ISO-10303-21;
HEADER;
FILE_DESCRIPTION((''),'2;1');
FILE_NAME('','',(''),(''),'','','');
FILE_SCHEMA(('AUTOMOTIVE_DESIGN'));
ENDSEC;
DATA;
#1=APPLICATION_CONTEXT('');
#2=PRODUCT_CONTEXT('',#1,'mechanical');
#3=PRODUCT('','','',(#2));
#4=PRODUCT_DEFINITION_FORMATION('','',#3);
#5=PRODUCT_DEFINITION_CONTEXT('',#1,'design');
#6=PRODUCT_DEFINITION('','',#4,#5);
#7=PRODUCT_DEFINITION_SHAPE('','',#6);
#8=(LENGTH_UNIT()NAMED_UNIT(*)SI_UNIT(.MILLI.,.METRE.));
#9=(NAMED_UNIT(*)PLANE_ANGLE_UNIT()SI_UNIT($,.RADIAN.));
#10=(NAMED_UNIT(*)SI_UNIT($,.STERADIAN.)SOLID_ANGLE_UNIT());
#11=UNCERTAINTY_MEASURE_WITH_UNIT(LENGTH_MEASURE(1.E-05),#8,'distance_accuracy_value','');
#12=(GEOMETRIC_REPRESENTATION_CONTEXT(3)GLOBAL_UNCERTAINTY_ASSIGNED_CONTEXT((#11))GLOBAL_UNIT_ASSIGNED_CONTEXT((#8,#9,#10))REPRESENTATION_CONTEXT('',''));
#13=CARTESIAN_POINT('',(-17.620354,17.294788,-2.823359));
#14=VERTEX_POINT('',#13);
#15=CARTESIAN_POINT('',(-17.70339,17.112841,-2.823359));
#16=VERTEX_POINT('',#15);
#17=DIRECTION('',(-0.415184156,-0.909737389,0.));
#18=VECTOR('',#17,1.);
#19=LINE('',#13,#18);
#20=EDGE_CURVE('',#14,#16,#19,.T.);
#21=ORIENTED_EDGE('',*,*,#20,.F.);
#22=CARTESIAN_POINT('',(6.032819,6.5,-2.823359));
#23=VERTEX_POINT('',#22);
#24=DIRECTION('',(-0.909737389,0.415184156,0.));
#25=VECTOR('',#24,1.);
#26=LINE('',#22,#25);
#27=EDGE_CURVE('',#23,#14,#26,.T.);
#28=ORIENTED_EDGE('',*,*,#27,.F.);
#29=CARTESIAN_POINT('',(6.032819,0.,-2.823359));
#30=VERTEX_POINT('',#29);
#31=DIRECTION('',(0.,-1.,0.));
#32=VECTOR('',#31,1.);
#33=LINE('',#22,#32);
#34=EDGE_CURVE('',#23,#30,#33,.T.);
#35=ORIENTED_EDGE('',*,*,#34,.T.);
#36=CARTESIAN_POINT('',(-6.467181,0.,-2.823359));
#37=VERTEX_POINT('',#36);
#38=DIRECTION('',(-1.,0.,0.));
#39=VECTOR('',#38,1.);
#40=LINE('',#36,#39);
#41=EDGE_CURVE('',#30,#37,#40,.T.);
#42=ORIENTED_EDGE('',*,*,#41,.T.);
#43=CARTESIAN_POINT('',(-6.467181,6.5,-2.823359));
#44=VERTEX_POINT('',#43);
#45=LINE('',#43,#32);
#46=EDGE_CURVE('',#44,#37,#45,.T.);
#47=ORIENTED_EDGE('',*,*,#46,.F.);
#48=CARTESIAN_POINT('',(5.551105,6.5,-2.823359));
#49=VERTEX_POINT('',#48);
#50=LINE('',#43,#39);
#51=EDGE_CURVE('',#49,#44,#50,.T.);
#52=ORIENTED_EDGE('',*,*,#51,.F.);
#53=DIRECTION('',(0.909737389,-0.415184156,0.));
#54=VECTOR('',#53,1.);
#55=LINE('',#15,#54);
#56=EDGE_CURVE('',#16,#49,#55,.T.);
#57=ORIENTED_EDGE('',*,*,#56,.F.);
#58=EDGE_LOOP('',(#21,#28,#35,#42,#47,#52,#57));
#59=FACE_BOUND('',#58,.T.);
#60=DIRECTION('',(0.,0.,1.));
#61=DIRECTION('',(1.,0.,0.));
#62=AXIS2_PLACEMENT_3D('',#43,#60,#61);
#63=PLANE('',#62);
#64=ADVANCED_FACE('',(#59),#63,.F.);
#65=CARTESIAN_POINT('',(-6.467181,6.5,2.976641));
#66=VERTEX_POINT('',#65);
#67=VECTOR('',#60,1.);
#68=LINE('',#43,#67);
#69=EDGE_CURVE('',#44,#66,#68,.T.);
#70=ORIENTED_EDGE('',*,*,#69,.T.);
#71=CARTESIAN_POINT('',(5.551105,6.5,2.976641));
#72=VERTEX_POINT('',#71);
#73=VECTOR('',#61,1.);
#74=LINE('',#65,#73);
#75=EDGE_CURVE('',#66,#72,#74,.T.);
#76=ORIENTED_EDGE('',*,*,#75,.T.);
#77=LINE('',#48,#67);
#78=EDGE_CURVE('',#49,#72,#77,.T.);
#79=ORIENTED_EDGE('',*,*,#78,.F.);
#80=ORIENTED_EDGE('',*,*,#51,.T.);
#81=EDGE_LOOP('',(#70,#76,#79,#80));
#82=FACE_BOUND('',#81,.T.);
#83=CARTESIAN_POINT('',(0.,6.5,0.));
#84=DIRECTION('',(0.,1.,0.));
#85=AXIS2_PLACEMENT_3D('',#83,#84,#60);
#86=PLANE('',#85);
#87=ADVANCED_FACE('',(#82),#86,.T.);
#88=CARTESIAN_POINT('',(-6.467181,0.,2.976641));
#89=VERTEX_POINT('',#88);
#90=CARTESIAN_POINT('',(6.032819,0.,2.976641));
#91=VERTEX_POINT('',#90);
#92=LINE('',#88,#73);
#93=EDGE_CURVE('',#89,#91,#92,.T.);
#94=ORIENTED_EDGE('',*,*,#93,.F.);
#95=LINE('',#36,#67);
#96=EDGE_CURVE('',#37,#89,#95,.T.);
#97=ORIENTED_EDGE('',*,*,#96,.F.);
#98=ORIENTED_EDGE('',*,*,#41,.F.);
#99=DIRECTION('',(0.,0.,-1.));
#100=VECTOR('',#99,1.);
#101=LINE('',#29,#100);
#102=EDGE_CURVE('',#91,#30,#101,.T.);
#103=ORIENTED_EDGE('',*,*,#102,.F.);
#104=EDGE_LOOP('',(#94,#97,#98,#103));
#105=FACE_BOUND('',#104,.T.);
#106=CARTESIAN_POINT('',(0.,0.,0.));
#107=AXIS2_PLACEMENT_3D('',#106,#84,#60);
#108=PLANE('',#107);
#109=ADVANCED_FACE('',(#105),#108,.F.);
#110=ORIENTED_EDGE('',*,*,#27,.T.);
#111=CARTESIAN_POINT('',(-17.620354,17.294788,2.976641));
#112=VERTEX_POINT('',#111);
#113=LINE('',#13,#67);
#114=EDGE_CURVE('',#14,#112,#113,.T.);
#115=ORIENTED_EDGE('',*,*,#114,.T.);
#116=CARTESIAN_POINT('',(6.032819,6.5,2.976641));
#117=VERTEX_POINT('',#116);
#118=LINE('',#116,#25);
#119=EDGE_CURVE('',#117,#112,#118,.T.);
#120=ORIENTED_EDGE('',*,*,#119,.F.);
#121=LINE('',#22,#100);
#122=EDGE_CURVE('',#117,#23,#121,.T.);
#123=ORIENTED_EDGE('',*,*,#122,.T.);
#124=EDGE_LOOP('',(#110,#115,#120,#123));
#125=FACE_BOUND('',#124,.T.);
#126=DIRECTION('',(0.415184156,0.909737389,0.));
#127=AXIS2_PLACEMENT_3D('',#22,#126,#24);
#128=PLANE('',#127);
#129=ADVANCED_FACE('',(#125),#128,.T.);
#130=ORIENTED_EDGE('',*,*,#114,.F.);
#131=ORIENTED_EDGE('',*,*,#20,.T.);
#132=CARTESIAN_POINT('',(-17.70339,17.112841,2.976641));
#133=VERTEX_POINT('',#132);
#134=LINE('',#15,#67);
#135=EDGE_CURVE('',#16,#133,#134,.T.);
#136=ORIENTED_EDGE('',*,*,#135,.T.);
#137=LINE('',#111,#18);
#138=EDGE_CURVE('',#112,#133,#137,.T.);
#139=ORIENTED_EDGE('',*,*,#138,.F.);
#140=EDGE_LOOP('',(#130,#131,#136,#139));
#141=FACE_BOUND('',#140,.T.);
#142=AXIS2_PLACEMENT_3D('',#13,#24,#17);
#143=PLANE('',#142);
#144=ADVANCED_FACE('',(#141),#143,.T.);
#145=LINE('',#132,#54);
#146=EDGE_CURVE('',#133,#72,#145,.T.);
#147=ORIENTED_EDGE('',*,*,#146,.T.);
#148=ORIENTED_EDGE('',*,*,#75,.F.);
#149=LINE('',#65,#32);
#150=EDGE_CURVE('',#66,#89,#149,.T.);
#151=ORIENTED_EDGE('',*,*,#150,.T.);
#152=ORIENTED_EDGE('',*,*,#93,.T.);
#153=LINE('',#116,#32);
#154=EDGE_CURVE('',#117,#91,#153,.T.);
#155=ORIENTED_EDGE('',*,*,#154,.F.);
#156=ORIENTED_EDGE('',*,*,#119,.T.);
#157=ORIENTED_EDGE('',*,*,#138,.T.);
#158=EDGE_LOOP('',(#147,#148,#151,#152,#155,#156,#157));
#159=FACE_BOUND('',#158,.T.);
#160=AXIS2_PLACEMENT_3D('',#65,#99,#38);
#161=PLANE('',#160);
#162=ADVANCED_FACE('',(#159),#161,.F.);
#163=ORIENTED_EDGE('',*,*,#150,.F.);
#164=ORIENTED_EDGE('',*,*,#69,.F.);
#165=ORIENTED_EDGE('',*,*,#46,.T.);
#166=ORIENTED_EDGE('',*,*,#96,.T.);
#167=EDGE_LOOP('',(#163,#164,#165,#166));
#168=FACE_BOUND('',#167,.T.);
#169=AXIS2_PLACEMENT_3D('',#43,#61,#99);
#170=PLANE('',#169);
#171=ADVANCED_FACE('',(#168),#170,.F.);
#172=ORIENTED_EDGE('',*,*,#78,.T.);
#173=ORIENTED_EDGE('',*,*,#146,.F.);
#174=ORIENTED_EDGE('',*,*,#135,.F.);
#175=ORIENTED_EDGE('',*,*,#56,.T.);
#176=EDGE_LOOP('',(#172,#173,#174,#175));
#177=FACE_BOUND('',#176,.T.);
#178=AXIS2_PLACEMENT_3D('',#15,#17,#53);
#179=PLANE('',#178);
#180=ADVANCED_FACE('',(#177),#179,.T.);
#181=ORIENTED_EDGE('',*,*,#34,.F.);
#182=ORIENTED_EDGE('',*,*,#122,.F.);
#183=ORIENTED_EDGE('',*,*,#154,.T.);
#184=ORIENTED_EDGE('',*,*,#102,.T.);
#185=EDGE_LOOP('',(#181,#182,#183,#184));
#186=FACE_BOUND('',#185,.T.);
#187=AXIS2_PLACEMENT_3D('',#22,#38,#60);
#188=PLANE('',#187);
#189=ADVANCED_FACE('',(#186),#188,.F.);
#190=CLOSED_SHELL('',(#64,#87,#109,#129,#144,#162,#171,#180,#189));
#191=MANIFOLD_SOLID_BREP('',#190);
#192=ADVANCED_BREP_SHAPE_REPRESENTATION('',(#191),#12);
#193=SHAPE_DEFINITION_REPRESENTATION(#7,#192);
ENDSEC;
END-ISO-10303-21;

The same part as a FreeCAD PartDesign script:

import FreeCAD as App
import Part
import Sketcher
from FreeCAD import Vector


def add_polygon(sketch, points):
    """Adds a closed chain of lines whose ends are joined by coincident constraints."""
    first, n = sketch.GeometryCount, len(points)
    for a, b in zip(points, points[1:] + points[:1]):
        sketch.addGeometry(Part.LineSegment(App.Vector(*a, 0), App.Vector(*b, 0)), False)
    for i in range(n):
        sketch.addConstraint(Sketcher.Constraint("Coincident", first + i, 2, first + (i + 1) % n, 1))

doc = App.newDocument("Part")
body = doc.addObject("PartDesign::Body", "Body")

# Sketch on XZ plane
sketch1 = body.newObject("Sketcher::SketchObject", "Sketch")
sketch1.AttachmentSupport = (doc.getObject("XZ_Plane"), [""])
sketch1.MapMode = "FlatFace"
add_polygon(sketch1, [(-6, -3), (-6, 3), (6, 3), (6, -3)])  # lines 0-3
sketch1.addConstraint([
    Sketcher.Constraint("Vertical", 0),
    Sketcher.Constraint("Horizontal", 1),
    Sketcher.Constraint("Vertical", 2),
    Sketcher.Constraint("Horizontal", 3),
    Sketcher.Constraint("DistanceX", 1, 1, 1, 2, 12.5),
    Sketcher.Constraint("DistanceY", 0, 1, 0, 2, 5.8),
    Sketcher.Constraint("DistanceX", 0, 2, -1, 1, 6.467181),
    Sketcher.Constraint("DistanceY", -1, 1, 0, 2, 2.976641),
])
pad1 = body.newObject("PartDesign::Pad", "Pad")
pad1.Profile = sketch1
pad1.Length = 6.5
pad1.Reversed = True

# Sketch on XY plane
sketch2 = body.newObject("Sketcher::SketchObject", "Sketch001")
sketch2.AttachmentSupport = (doc.getObject("XY_Plane"), [""])
sketch2.MapMode = "FlatFace"
sketch2.AttachmentOffset = App.Placement(Vector(0, 0, 2.976641), App.Rotation())
add_polygon(sketch2, [(6.03, 6.5), (-17.62, 17.29), (-17.7, 17.11), (5.55, 6.5)])  # lines 0-3
sketch2.addConstraint([
    Sketcher.Constraint("Horizontal", 3),
    Sketcher.Constraint("Perpendicular", 0, 1),
    Sketcher.Constraint("Perpendicular", 1, 2),
    Sketcher.Constraint("Distance", 0, 26.0),
    Sketcher.Constraint("Distance", 1, 0.2),
    Sketcher.Constraint("DistanceY", -1, 1, 2, 2, 6.5),
    Sketcher.Constraint("DistanceX", 3, 1, 3, 2, 0.481714),
    Sketcher.Constraint("DistanceX", 1, 2, -1, 1, 17.70339),
])
pad2 = body.newObject("PartDesign::Pad", "Pad001")
pad2.Profile = sketch2
pad2.Length = 5.8
pad2.Reversed = True

doc.recompute()
